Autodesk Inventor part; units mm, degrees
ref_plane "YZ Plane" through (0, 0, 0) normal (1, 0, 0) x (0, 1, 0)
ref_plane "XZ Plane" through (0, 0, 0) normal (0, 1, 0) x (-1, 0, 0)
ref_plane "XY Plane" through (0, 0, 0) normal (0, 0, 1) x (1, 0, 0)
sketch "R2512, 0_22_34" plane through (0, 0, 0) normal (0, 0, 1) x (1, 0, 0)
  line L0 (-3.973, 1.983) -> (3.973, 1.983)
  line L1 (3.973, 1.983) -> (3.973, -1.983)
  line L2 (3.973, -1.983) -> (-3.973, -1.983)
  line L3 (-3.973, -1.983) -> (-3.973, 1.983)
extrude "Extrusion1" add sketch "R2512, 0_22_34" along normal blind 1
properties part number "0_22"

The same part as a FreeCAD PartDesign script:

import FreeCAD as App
import Part
import Sketcher
from FreeCAD import Vector

doc = App.newDocument("Part")
body = doc.addObject("PartDesign::Body", "Body")

# Sketch on XY plane
sketch1 = body.newObject("Sketcher::SketchObject", "Sketch")
sketch1.AttachmentSupport = (doc.getObject("XY_Plane"), [""])
sketch1.MapMode = "FlatFace"
sketch1.addGeometry(Part.LineSegment(Vector(4, 2, 0), Vector(-4, 2, 0)), False)
sketch1.addGeometry(Part.LineSegment(Vector(-4, 2, 0), Vector(-4, -2, 0)), False)
sketch1.addGeometry(Part.LineSegment(Vector(-4, -2, 0), Vector(4, -2, 0)), False)
sketch1.addGeometry(Part.LineSegment(Vector(4, -2, 0), Vector(4, 2, 0)), False)
sketch1.addConstraint(Sketcher.Constraint("Coincident", 0, 2, 1, 1))
sketch1.addConstraint(Sketcher.Constraint("Coincident", 1, 2, 2, 1))
sketch1.addConstraint(Sketcher.Constraint("Coincident", 2, 2, 3, 1))
sketch1.addConstraint(Sketcher.Constraint("Coincident", 3, 2, 0, 1))
sketch1.addConstraint(Sketcher.Constraint("Horizontal", 0))
sketch1.addConstraint(Sketcher.Constraint("Vertical", 1))
sketch1.addConstraint(Sketcher.Constraint("Horizontal", 2))
sketch1.addConstraint(Sketcher.Constraint("Vertical", 3))
sketch1.addConstraint(Sketcher.Constraint("Symmetric", 0, 2, 2, 2, -1, 1))
sketch1.addConstraint(Sketcher.Constraint("DistanceX", 0, 2, 0, 1, 7.946))
sketch1.addConstraint(Sketcher.Constraint("DistanceY", 1, 2, 1, 1, 3.966))
pad1 = body.newObject("PartDesign::Pad", "Pad")
pad1.Profile = sketch1
pad1.Length = 1

doc.recompute()
